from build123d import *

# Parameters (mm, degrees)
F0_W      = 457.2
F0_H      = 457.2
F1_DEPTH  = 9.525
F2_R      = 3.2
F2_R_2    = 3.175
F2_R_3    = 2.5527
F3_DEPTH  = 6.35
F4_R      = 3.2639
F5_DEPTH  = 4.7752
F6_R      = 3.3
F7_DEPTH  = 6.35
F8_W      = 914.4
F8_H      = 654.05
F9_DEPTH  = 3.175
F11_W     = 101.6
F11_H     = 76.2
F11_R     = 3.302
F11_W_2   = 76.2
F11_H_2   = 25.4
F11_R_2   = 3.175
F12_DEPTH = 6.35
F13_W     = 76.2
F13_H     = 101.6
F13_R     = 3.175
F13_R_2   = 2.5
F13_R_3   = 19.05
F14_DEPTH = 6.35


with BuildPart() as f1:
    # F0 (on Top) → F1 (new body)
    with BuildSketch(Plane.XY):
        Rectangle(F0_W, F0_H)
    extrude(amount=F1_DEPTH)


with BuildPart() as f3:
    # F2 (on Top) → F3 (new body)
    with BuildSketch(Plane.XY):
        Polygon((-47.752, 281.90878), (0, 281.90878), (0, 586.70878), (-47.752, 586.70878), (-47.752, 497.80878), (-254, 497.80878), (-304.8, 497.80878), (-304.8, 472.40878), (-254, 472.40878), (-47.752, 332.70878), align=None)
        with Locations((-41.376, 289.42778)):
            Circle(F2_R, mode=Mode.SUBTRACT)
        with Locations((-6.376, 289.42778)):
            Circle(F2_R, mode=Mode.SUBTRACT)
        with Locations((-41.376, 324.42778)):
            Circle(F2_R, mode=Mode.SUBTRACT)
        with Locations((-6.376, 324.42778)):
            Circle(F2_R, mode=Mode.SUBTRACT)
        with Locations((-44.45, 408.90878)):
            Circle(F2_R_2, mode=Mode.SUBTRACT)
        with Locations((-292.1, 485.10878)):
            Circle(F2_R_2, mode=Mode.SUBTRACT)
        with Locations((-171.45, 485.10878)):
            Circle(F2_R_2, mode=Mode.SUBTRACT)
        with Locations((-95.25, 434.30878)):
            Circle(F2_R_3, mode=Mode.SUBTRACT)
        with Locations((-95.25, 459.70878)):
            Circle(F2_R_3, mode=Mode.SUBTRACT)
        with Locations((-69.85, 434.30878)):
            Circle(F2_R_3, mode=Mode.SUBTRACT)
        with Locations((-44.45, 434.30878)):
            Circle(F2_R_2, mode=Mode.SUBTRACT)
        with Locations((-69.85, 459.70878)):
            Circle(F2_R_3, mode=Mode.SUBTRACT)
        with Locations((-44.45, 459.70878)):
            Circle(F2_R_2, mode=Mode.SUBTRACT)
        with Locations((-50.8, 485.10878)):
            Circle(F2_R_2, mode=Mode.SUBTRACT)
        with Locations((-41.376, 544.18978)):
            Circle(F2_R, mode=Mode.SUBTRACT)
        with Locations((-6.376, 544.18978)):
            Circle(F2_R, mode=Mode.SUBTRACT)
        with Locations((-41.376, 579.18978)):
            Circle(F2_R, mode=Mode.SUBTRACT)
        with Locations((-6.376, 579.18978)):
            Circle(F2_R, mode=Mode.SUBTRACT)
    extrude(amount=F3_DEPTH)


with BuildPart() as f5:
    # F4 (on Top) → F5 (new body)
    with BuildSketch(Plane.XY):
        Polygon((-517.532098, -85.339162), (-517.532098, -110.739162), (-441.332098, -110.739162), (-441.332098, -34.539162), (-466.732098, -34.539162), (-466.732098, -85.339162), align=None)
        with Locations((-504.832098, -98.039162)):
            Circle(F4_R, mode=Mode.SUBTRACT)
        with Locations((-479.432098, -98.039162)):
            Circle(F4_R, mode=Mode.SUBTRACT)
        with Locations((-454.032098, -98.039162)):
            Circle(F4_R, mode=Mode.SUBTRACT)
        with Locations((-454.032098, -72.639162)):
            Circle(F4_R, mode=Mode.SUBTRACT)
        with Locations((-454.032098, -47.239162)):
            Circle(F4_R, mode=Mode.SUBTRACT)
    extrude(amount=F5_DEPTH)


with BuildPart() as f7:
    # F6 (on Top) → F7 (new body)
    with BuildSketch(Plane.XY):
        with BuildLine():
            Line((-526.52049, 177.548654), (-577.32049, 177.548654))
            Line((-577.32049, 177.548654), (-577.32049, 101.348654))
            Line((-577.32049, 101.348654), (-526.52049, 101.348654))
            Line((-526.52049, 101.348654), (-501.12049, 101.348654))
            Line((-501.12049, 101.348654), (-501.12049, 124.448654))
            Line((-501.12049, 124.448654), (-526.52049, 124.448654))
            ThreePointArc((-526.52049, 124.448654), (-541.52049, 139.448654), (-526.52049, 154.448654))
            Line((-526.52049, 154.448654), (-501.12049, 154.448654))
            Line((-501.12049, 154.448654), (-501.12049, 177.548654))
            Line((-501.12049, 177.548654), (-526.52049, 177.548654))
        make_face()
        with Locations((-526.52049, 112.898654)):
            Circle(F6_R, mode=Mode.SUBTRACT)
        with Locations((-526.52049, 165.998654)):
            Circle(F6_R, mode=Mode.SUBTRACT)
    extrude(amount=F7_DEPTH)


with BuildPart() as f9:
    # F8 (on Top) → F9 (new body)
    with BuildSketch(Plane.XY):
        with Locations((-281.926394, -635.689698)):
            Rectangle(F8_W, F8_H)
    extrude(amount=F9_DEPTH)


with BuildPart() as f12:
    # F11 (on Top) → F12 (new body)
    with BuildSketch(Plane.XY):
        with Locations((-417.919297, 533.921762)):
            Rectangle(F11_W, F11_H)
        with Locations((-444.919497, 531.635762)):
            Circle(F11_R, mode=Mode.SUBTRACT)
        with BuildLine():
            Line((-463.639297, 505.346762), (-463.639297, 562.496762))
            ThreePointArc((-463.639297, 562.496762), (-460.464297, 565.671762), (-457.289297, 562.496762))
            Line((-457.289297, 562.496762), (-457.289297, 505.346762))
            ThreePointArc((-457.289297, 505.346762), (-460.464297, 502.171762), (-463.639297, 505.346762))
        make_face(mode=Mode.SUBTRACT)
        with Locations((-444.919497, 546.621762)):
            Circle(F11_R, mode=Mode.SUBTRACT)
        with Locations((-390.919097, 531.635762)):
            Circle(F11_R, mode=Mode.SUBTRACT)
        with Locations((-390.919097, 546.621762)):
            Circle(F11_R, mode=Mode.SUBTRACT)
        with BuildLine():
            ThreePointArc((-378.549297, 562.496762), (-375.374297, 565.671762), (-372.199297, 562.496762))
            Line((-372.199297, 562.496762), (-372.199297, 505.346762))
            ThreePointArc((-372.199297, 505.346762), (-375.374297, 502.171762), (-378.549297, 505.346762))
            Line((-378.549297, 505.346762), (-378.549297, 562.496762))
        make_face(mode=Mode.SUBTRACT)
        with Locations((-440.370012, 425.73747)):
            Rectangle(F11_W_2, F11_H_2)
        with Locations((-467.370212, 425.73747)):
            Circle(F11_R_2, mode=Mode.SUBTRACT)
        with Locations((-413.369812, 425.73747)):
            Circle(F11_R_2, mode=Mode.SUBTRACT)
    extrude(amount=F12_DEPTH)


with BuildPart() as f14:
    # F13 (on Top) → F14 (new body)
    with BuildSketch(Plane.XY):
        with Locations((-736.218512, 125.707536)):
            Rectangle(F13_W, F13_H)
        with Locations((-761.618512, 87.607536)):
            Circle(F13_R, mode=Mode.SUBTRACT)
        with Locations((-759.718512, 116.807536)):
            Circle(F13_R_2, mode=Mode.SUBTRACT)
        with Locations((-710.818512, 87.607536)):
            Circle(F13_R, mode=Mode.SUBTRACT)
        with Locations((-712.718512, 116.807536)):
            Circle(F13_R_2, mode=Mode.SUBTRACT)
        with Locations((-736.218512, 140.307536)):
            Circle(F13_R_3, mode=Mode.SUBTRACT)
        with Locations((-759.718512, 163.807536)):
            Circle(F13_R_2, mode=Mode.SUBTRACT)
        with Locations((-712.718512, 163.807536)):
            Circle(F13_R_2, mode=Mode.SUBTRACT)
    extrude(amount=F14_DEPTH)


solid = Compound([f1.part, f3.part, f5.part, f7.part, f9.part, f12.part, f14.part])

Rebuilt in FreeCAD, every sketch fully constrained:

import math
import FreeCAD as App
import Part
import Sketcher

V = App.Vector
Q = App.Units.Quantity

doc = App.newDocument("Part")
body = doc.addObject("PartDesign::Body", "Body")

sketch1 = body.newObject("Sketcher::SketchObject", "Sketch")
sketch1.AttachmentSupport = (doc.getObject("XY_Plane"), [""])
sketch1.MapMode = "FlatFace"
sketch1.addGeometry([
    Part.LineSegment(V(-228.6, 228.6, 0), V(-228.6, -228.6, 0)),
    Part.LineSegment(V(-228.6, -228.6, 0), V(228.6, -228.6, 0)),
    Part.LineSegment(V(228.6, -228.6, 0), V(228.6, 228.6, 0)),
    Part.LineSegment(V(228.6, 228.6, 0), V(-228.6, 228.6, 0)),
], False)
sketch1.addConstraint([
    Sketcher.Constraint("Coincident", 0, 2, 1, 1),
    Sketcher.Constraint("Coincident", 1, 2, 2, 1),
    Sketcher.Constraint("Coincident", 2, 2, 3, 1),
    Sketcher.Constraint("Coincident", 3, 2, 0, 1),
    Sketcher.Constraint("Vertical", 0),
    Sketcher.Constraint("Horizontal", 1),
    Sketcher.Constraint("Vertical", 2),
    Sketcher.Constraint("Horizontal", 3),
    Sketcher.Constraint("Symmetric", 0, 2, 2, 2, -1, 1),
    Sketcher.Constraint("Equal", 3, 0),
    Sketcher.Constraint("DistanceX", 1, 1, 1, 2, Q("18 in")),
])
pad1 = body.newObject("PartDesign::Pad", "Pad")
pad1.Profile = sketch1
pad1.Length = Q("0.375 in")
body2 = doc.addObject("PartDesign::Body", "Body001")

sketch2 = body2.newObject("Sketcher::SketchObject", "Sketch001")
sketch2.AttachmentSupport = (doc.getObject("XY_Plane001"), [""])
sketch2.MapMode = "FlatFace"
sketch2.addGeometry([
    Part.LineSegment(V(-47.752, 281.90878, 0), V(0, 281.90878, 0)),
    Part.LineSegment(V(0, 281.90878, 0), V(0, 586.70878, 0)),
    Part.LineSegment(V(0, 586.70878, 0), V(-47.752, 586.70878, 0)),
    Part.LineSegment(V(-47.752, 586.70878, 0), V(-47.752, 497.80878, 0)),
    Part.LineSegment(V(-47.752, 497.80878, 0), V(-304.8, 497.80878, 0)),
    Part.LineSegment(V(-304.8, 497.80878, 0), V(-304.8, 472.40878, 0)),
    Part.LineSegment(V(-304.8, 472.40878, 0), V(-254, 472.40878, 0)),
    Part.LineSegment(V(-254, 472.40878, 0), V(-47.752, 332.70878, 0)),
    Part.LineSegment(V(-47.752, 332.70878, 0), V(-47.752, 281.90878, 0)),
    Part.Circle(V(-41.376, 289.42778, 0), V(0, 0, 1), 3.2),
    Part.Circle(V(-6.376, 289.42778, 0), V(0, 0, 1), 3.2),
    Part.Circle(V(-41.376, 324.42778, 0), V(0, 0, 1), 3.2),
    Part.Circle(V(-6.376, 324.42778, 0), V(0, 0, 1), 3.2),
    Part.Circle(V(-44.45, 408.90878, 0), V(0, 0, 1), 3.175),
    Part.Circle(V(-292.1, 485.10878, 0), V(0, 0, 1), 3.175),
    Part.Circle(V(-171.45, 485.10878, 0), V(0, 0, 1), 3.175),
    Part.Circle(V(-95.25, 434.30878, 0), V(0, 0, 1), 2.5527),
    Part.Circle(V(-95.25, 459.70878, 0), V(0, 0, 1), 2.5527),
    Part.Circle(V(-69.85, 434.30878, 0), V(0, 0, 1), 2.5527),
    Part.Circle(V(-44.45, 434.30878, 0), V(0, 0, 1), 3.175),
    Part.Circle(V(-69.85, 459.70878, 0), V(0, 0, 1), 2.5527),
    Part.Circle(V(-44.45, 459.70878, 0), V(0, 0, 1), 3.175),
    Part.Circle(V(-50.8, 485.10878, 0), V(0, 0, 1), 3.175),
    Part.Circle(V(-41.376, 544.18978, 0), V(0, 0, 1), 3.2),
    Part.Circle(V(-6.376, 544.18978, 0), V(0, 0, 1), 3.2),
    Part.Circle(V(-41.376, 579.18978, 0), V(0, 0, 1), 3.2),
    Part.Circle(V(-6.376, 579.18978, 0), V(0, 0, 1), 3.2),
], False)
sketch2.addConstraint([
    Sketcher.Constraint("Coincident", 0, 2, 1, 1),
    Sketcher.Constraint("Coincident", 1, 2, 2, 1),
    Sketcher.Constraint("Coincident", 2, 2, 3, 1),
    Sketcher.Constraint("Coincident", 3, 2, 4, 1),
    Sketcher.Constraint("Coincident", 4, 2, 5, 1),
    Sketcher.Constraint("Coincident", 5, 2, 6, 1),
    Sketcher.Constraint("Coincident", 6, 2, 7, 1),
    Sketcher.Constraint("Coincident", 7, 2, 8, 1),
    Sketcher.Constraint("Coincident", 8, 2, 0, 1),
    Sketcher.Constraint("Horizontal", 0),
    Sketcher.Constraint("Vertical", 1),
    Sketcher.Constraint("Horizontal", 2),
    Sketcher.Constraint("Vertical", 3),
    Sketcher.Constraint("Horizontal", 4),
    Sketcher.Constraint("Vertical", 5),
    Sketcher.Constraint("Horizontal", 6),
    Sketcher.Constraint("Vertical", 8),
    Sketcher.Constraint("Equal", 9, 10),
    Sketcher.Constraint("Equal", 10, 11),
    Sketcher.Constraint("Equal", 11, 12),
    Sketcher.Constraint("Equal", 13, 14),
    Sketcher.Constraint("Equal", 14, 15),
    Sketcher.Constraint("Equal", 16, 17),
    Sketcher.Constraint("Equal", 17, 18),
    Sketcher.Constraint("Equal", 15, 19),
    Sketcher.Constraint("Equal", 18, 20),
    Sketcher.Constraint("Equal", 19, 21),
    Sketcher.Constraint("Equal", 21, 22),
    Sketcher.Constraint("Equal", 12, 23),
    Sketcher.Constraint("Equal", 23, 24),
    Sketcher.Constraint("Equal", 24, 25),
    Sketcher.Constraint("Equal", 25, 26),
    Sketcher.Constraint("PointOnObject", 0, 2, -2),
    Sketcher.Constraint("Horizontal", 9, 3, 10, 3),
    Sketcher.Constraint("Horizontal", 11, 3, 12, 3),
    Sketcher.Constraint("Horizontal", 14, 3, 15, 3),
    Sketcher.Constraint("Horizontal", 16, 3, 18, 3),
    Sketcher.Constraint("Horizontal", 18, 3, 19, 3),
    Sketcher.Constraint("Horizontal", 17, 3, 20, 3),
    Sketcher.Constraint("Horizontal", 20, 3, 21, 3),
    Sketcher.Constraint("Horizontal", 15, 3, 22, 3),
    Sketcher.Constraint("Horizontal", 23, 3, 24, 3),
    Sketcher.Constraint("Horizontal", 25, 3, 26, 3),
    Sketcher.Constraint("Vertical", 9, 3, 11, 3),
    Sketcher.Constraint("Vertical", 10, 3, 12, 3),
    Sketcher.Constraint("Vertical", 16, 3, 17, 3),
    Sketcher.Constraint("Vertical", 13, 3, 19, 3),
    Sketcher.Constraint("Vertical", 18, 3, 20, 3),
    Sketcher.Constraint("Vertical", 19, 3, 21, 3),
    Sketcher.Constraint("Vertical", 11, 3, 23, 3),
    Sketcher.Constraint("Vertical", 12, 3, 24, 3),
    Sketcher.Constraint("Vertical", 23, 3, 25, 3),
    Sketcher.Constraint("Vertical", 24, 3, 26, 3),
    Sketcher.Constraint("Vertical", 3, 2, 7, 2),
    Sketcher.Constraint("Equal", 6, 8),
    Sketcher.Constraint("Diameter", 13, Q("0.25 in")),
    Sketcher.Constraint("DistanceX", 6, 1, 6, 2, Q("2 in")),
    Sketcher.Constraint("DistanceY", 1, 1, 1, 2, Q("12 in")),
    Sketcher.Constraint("DistanceY", 5, 2, 5, 1, Q("1 in")),
    Sketcher.Constraint("Diameter", 16, Q("0.201 in")),
    Sketcher.Constraint("DistanceY", 3, 2, 3, 1, Q("3.5 in")),
    Sketcher.Constraint("DistanceX", 22, 3, -1, 1, Q("2 in")),
    Sketcher.Constraint("DistanceX", 4, 2, -1, 1, Q("12 in")),
    Sketcher.Constraint("DistanceY", 13, 3, 14, 3, Q("3 in")),
    Sketcher.Constraint("DistanceX", 15, 3, 13, 3, Q("5 in")),
    Sketcher.Constraint("DistanceX", 16, 3, 13, 3, Q("2 in")),
    Sketcher.Constraint("DistanceY", 13, 3, 16, 3, Q("1 in")),
    Sketcher.Constraint("DistanceY", 16, 3, 17, 3, Q("1 in")),
    Sketcher.Constraint("DistanceX", 16, 3, 18, 3, Q("1 in")),
    Sketcher.Constraint("DistanceY", 0, 2, 13, 3, Q("5 in")),
    Sketcher.Constraint("DistanceX", 0, 1, 0, 2, Q("1.88 in")),
    Sketcher.Constraint("DistanceX", 14, 3, -1, 1, Q("11.5 in")),
    Sketcher.Constraint("Diameter", 9, 6.4),
    Sketcher.Constraint("DistanceX", 13, 3, -1, 1, Q("1.75 in")),
    Sketcher.Constraint("DistanceX", 9, 3, -1, 1, 41.376),
    Sketcher.Constraint("DistanceX", 10, 3, -1, 1, 6.376),
    Sketcher.Constraint("DistanceY", 9, 3, 11, 3, 35.0),
    Sketcher.Constraint("DistanceY", 11, 3, 13, 3, 84.481),
    Sketcher.Constraint("DistanceY", 22, 3, 23, 3, 59.081),
    Sketcher.Constraint("DistanceY", 23, 3, 25, 3, 35.0),
    Sketcher.Constraint("DistanceY", -1, 1, 9, 3, 289.42778),
])
pad2 = body2.newObject("PartDesign::Pad", "Pad001")
pad2.Profile = sketch2
pad2.Length = Q("0.25 in")
body3 = doc.addObject("PartDesign::Body", "Body002")

sketch3 = body3.newObject("Sketcher::SketchObject", "Sketch002")
sketch3.AttachmentSupport = (doc.getObject("XY_Plane002"), [""])
sketch3.MapMode = "FlatFace"
sketch3.addGeometry([
    Part.LineSegment(V(-517.532098, -85.339162, 0), V(-517.532098, -110.739162, 0)),
    Part.LineSegment(V(-517.532098, -110.739162, 0), V(-441.332098, -110.739162, 0)),
    Part.LineSegment(V(-441.332098, -110.739162, 0), V(-441.332098, -34.539162, 0)),
    Part.LineSegment(V(-441.332098, -34.539162, 0), V(-466.732098, -34.539162, 0)),
    Part.LineSegment(V(-466.732098, -34.539162, 0), V(-466.732098, -85.339162, 0)),
    Part.LineSegment(V(-466.732098, -85.339162, 0), V(-517.532098, -85.339162, 0)),
    Part.Circle(V(-504.832098, -98.039162, 0), V(0, 0, 1), 3.2639),
    Part.Circle(V(-479.432098, -98.039162, 0), V(0, 0, 1), 3.2639),
    Part.Circle(V(-454.032098, -98.039162, 0), V(0, 0, 1), 3.2639),
    Part.Circle(V(-454.032098, -72.639162, 0), V(0, 0, 1), 3.2639),
    Part.Circle(V(-454.032098, -47.239162, 0), V(0, 0, 1), 3.2639),
], False)
sketch3.addConstraint([
    Sketcher.Constraint("Coincident", 0, 2, 1, 1),
    Sketcher.Constraint("Coincident", 1, 2, 2, 1),
    Sketcher.Constraint("Coincident", 2, 2, 3, 1),
    Sketcher.Constraint("Coincident", 3, 2, 4, 1),
    Sketcher.Constraint("Coincident", 4, 2, 5, 1),
    Sketcher.Constraint("Coincident", 5, 2, 0, 1),
    Sketcher.Constraint("Vertical", 0),
    Sketcher.Constraint("Horizontal", 1),
    Sketcher.Constraint("Vertical", 2),
    Sketcher.Constraint("Horizontal", 3),
    Sketcher.Constraint("Vertical", 4),
    Sketcher.Constraint("Horizontal", 5),
    Sketcher.Constraint("Equal", 6, 7),
    Sketcher.Constraint("Equal", 7, 8),
    Sketcher.Constraint("Equal", 8, 9),
    Sketcher.Constraint("Equal", 9, 10),
    Sketcher.Constraint("Horizontal", 6, 3, 7, 3),
    Sketcher.Constraint("Horizontal", 7, 3, 8, 3),
    Sketcher.Constraint("Vertical", 8, 3, 9, 3),
    Sketcher.Constraint("Vertical", 9, 3, 10, 3),
    Sketcher.Constraint("Equal", 3, 0),
    Sketcher.Constraint("Equal", 1, 2),
    Sketcher.Constraint("DistanceX", 1, 1, 1, 2, Q("3 in")),
    Sketcher.Constraint("DistanceX", 3, 2, 3, 1, Q("1 in")),
    Sketcher.Constraint("Diameter", 6, Q("0.257 in")),
    Sketcher.Constraint("DistanceX", 6, 3, 7, 3, Q("1 in")),
    Sketcher.Constraint("DistanceX", 7, 3, 8, 3, Q("1 in")),
    Sketcher.Constraint("DistanceY", 8, 3, 9, 3, Q("1 in")),
    Sketcher.Constraint("DistanceY", 9, 3, 10, 3, Q("1 in")),
    Sketcher.Constraint("DistanceX", 0, 2, 6, 3, Q("0.5 in")),
    Sketcher.Constraint("DistanceY", 0, 2, 6, 3, Q("0.5 in")),
    Sketcher.Constraint("DistanceX", 7, 3, -1, 1, 479.432098),
    Sketcher.Constraint("DistanceY", 9, 3, -1, 1, 72.639162),
])
pad3 = body3.newObject("PartDesign::Pad", "Pad002")
pad3.Profile = sketch3
pad3.Length = Q("0.188 in")
body4 = doc.addObject("PartDesign::Body", "Body003")

sketch4 = body4.newObject("Sketcher::SketchObject", "Sketch003")
sketch4.AttachmentSupport = (doc.getObject("XY_Plane003"), [""])
sketch4.MapMode = "FlatFace"
sketch4.addGeometry([
    Part.LineSegment(V(-577.32049, 177.548654, 0), V(-577.32049, 101.348654, 0)),
    Part.LineSegment(V(-577.32049, 101.348654, 0), V(-501.12049, 101.348654, 0)),
    Part.LineSegment(V(-501.12049, 101.348654, 0), V(-501.12049, 124.448654, 0)),
    Part.LineSegment(V(-501.12049, 124.448654, 0), V(-526.52049, 124.448654, 0)),
    Part.ArcOfCircle(Part.Circle(V(-526.52049, 139.448654, 0), V(0, 0, 1), 15), math.radians(90), math.radians(270)),
    Part.LineSegment(V(-526.52049, 154.448654, 0), V(-501.12049, 154.448654, 0)),
    Part.LineSegment(V(-501.12049, 154.448654, 0), V(-501.12049, 177.548654, 0)),
    Part.LineSegment(V(-501.12049, 177.548654, 0), V(-577.32049, 177.548654, 0)),
    Part.Circle(V(-526.52049, 112.898654, 0), V(0, 0, 1), 3.3),
    Part.Circle(V(-526.52049, 165.998654, 0), V(0, 0, 1), 3.3),
], False)
sketch4.addConstraint([
    Sketcher.Constraint("Coincident", 0, 2, 1, 1),
    Sketcher.Constraint("Coincident", 1, 2, 2, 1),
    Sketcher.Constraint("Coincident", 2, 2, 3, 1),
    Sketcher.Constraint("Tangent", 3, 2, 4, 2),
    Sketcher.Constraint("Tangent", 4, 1, 5, 1),
    Sketcher.Constraint("Coincident", 5, 2, 6, 1),
    Sketcher.Constraint("Coincident", 6, 2, 7, 1),
    Sketcher.Constraint("Coincident", 7, 2, 0, 1),
    Sketcher.Constraint("Vertical", 0),
    Sketcher.Constraint("Horizontal", 1),
    Sketcher.Constraint("Vertical", 2),
    Sketcher.Constraint("Horizontal", 3),
    Sketcher.Constraint("Horizontal", 5),
    Sketcher.Constraint("Vertical", 6),
    Sketcher.Constraint("Horizontal", 7),
    Sketcher.Constraint("Equal", 8, 9),
    Sketcher.Constraint("Vertical", 4, 3, 8, 3),
    Sketcher.Constraint("Vertical", 8, 3, 9, 3),
    Sketcher.Constraint("Vertical", 2, 2, 5, 2),
    Sketcher.Constraint("Equal", 7, 0),
    Sketcher.Constraint("Equal", 2, 6),
    Sketcher.Constraint("DistanceX", 1, 1, 1, 2, Q("3 in")),
    Sketcher.Constraint("DistanceX", 3, 2, 3, 1, Q("1 in")),
    Sketcher.Constraint("Diameter", 8, 6.6),
    Sketcher.Constraint("Radius", 4, 15.0),
    Sketcher.Constraint("DistanceY", 8, 3, 4, 3, 26.55),
    Sketcher.Constraint("DistanceY", 4, 3, 9, 3, 26.55),
    Sketcher.Constraint("DistanceX", 4, 3, -1, 1, 526.52049),
    Sketcher.Constraint("DistanceY", -1, 1, 4, 3, 139.448654),
])
pad4 = body4.newObject("PartDesign::Pad", "Pad003")
pad4.Profile = sketch4
pad4.Length = Q("0.25 in")
body5 = doc.addObject("PartDesign::Body", "Body004")

sketch5 = body5.newObject("Sketcher::SketchObject", "Sketch004")
sketch5.AttachmentSupport = (doc.getObject("XY_Plane004"), [""])
sketch5.MapMode = "FlatFace"
sketch5.addGeometry([
    Part.LineSegment(V(-739.126394, -308.664698, 0), V(-739.126394, -962.714698, 0)),
    Part.LineSegment(V(-739.126394, -962.714698, 0), V(175.273606, -962.714698, 0)),
    Part.LineSegment(V(175.273606, -962.714698, 0), V(175.273606, -308.664698, 0)),
    Part.LineSegment(V(175.273606, -308.664698, 0), V(-739.126394, -308.664698, 0)),
], False)
sketch5.addConstraint([
    Sketcher.Constraint("Coincident", 0, 2, 1, 1),
    Sketcher.Constraint("Coincident", 1, 2, 2, 1),
    Sketcher.Constraint("Coincident", 2, 2, 3, 1),
    Sketcher.Constraint("Coincident", 3, 2, 0, 1),
    Sketcher.Constraint("Vertical", 0),
    Sketcher.Constraint("Horizontal", 1),
    Sketcher.Constraint("Vertical", 2),
    Sketcher.Constraint("Horizontal", 3),
    Sketcher.Constraint("DistanceX", 1, 1, 1, 2, Q("36 in")),
    Sketcher.Constraint("DistanceY", 0, 2, 0, 1, Q("25.75 in")),
    Sketcher.Constraint("DistanceY", 0, 2, -1, 1, 962.714698),
    Sketcher.Constraint("DistanceX", 0, 2, -1, 1, 739.126394),
])
pad5 = body5.newObject("PartDesign::Pad", "Pad004")
pad5.Profile = sketch5
pad5.Length = Q("0.125 in")
body6 = doc.addObject("PartDesign::Body", "Body005")
body6.AllowCompound = True

sketch6 = body6.newObject("Sketcher::SketchObject", "Sketch005")
sketch6.AttachmentSupport = (doc.getObject("XY_Plane005"), [""])
sketch6.MapMode = "FlatFace"
sketch6.addGeometry([
    Part.LineSegment(V(-468.719297, 572.021762, 0), V(-468.719297, 495.821762, 0)),
    Part.LineSegment(V(-468.719297, 495.821762, 0), V(-367.119297, 495.821762, 0)),
    Part.LineSegment(V(-367.119297, 495.821762, 0), V(-367.119297, 572.021762, 0)),
    Part.LineSegment(V(-367.119297, 572.021762, 0), V(-468.719297, 572.021762, 0)),
    Part.Circle(V(-444.919497, 531.635762, 0), V(0, 0, 1), 3.302),
    Part.Circle(V(-390.919097, 531.635762, 0), V(0, 0, 1), 3.302),
    Part.LineSegment(V(-378.549297, 505.346762, 0), V(-378.549297, 562.496762, 0)),
    Part.ArcOfCircle(Part.Circle(V(-375.374297, 562.496762, 0), V(0, 0, 1), 3.175), math.radians(0), math.radians(180)),
    Part.LineSegment(V(-372.199297, 562.496762, 0), V(-372.199297, 505.346762, 0)),
    Part.ArcOfCircle(Part.Circle(V(-375.374297, 505.346762, 0), V(0, 0, 1), 3.175), math.radians(180), math.radians(360)),
    Part.ArcOfCircle(Part.Circle(V(-460.464297, 505.346762, 0), V(0, 0, 1), 3.175), math.radians(180), math.radians(360)),
    Part.LineSegment(V(-463.639297, 505.346762, 0), V(-463.639297, 562.496762, 0)),
    Part.ArcOfCircle(Part.Circle(V(-460.464297, 562.496762, 0), V(0, 0, 1), 3.175), math.radians(0), math.radians(180)),
    Part.LineSegment(V(-457.289297, 562.496762, 0), V(-457.289297, 505.346762, 0)),
    Part.Circle(V(-444.919497, 546.621762, 0), V(0, 0, 1), 3.302),
    Part.Circle(V(-390.919097, 546.621762, 0), V(0, 0, 1), 3.302),
    Part.LineSegment(V(-478.470012, 438.43747, 0), V(-478.470012, 413.03747, 0)),
    Part.LineSegment(V(-478.470012, 413.03747, 0), V(-402.270012, 413.03747, 0)),
    Part.LineSegment(V(-402.270012, 413.03747, 0), V(-402.270012, 438.43747, 0)),
    Part.LineSegment(V(-402.270012, 438.43747, 0), V(-478.470012, 438.43747, 0)),
    Part.Circle(V(-467.370212, 425.73747, 0), V(0, 0, 1), 3.175),
    Part.Circle(V(-413.369812, 425.73747, 0), V(0, 0, 1), 3.175),
], False)
sketch6.addConstraint([
    Sketcher.Constraint("Coincident", 0, 2, 1, 1),
    Sketcher.Constraint("Coincident", 1, 2, 2, 1),
    Sketcher.Constraint("Coincident", 2, 2, 3, 1),
    Sketcher.Constraint("Coincident", 3, 2, 0, 1),
    Sketcher.Constraint("Tangent", 6, 2, 7, 2),
    Sketcher.Constraint("Tangent", 7, 1, 8, 1),
    Sketcher.Constraint("Tangent", 8, 2, 9, 2),
    Sketcher.Constraint("Tangent", 9, 1, 6, 1),
    Sketcher.Constraint("Tangent", 10, 1, 11, 1),
    Sketcher.Constraint("Tangent", 11, 2, 12, 2),
    Sketcher.Constraint("Tangent", 12, 1, 13, 1),
    Sketcher.Constraint("Tangent", 13, 2, 10, 2),
    Sketcher.Constraint("Coincident", 16, 2, 17, 1),
    Sketcher.Constraint("Coincident", 17, 2, 18, 1),
    Sketcher.Constraint("Coincident", 18, 2, 19, 1),
    Sketcher.Constraint("Coincident", 19, 2, 16, 1),
    Sketcher.Constraint("Vertical", 0),
    Sketcher.Constraint("Horizontal", 1),
    Sketcher.Constraint("Vertical", 2),
    Sketcher.Constraint("Horizontal", 3),
    Sketcher.Constraint("Vertical", 6),
    Sketcher.Constraint("Vertical", 8),
    Sketcher.Constraint("Vertical", 11),
    Sketcher.Constraint("Vertical", 13),
    Sketcher.Constraint("Vertical", 16),
    Sketcher.Constraint("Horizontal", 17),
    Sketcher.Constraint("Vertical", 18),
    Sketcher.Constraint("Horizontal", 19),
    Sketcher.Constraint("Equal", 4, 5),
    Sketcher.Constraint("Equal", 9, 10),
    Sketcher.Constraint("Equal", 5, 14),
    Sketcher.Constraint("Equal", 14, 15),
    Sketcher.Constraint("Equal", 12, 20),
    Sketcher.Constraint("Equal", 20, 21),
    Sketcher.Constraint("Horizontal", 4, 3, 5, 3),
    Sketcher.Constraint("Horizontal", 9, 3, 10, 3),
    Sketcher.Constraint("Horizontal", 7, 3, 12, 3),
    Sketcher.Constraint("Horizontal", 14, 3, 15, 3),
    Sketcher.Constraint("Horizontal", 20, 3, 21, 3),
    Sketcher.Constraint("Vertical", 4, 3, 14, 3),
    Sketcher.Constraint("Vertical", 5, 3, 15, 3),
    Sketcher.Constraint("Equal", 19, 0),
    Sketcher.Constraint("Diameter", 4, Q("0.26 in")),
    Sketcher.Constraint("Diameter", 20, Q("0.25 in")),
    Sketcher.Constraint("DistanceX", 1, 1, 1, 2, Q("4 in")),
    Sketcher.Constraint("DistanceX", 17, 1, 17, 2, Q("3 in")),
    Sketcher.Constraint("DistanceY", 16, 2, 16, 1, Q("1 in")),
    Sketcher.Constraint("DistanceY", 0, 2, 14, 3, Q("2 in")),
    Sketcher.Constraint("DistanceY", 6, 1, 6, 2, Q("2.25 in")),
    Sketcher.Constraint("DistanceX", 7, 1, 2, 2, Q("0.2 in")),
    Sketcher.Constraint("DistanceX", 0, 2, 10, 1, Q("0.2 in")),
    Sketcher.Constraint("DistanceY", 16, 2, 20, 3, Q("0.5 in")),
    Sketcher.Constraint("DistanceY", 4, 3, 14, 3, Q("0.59 in")),
    Sketcher.Constraint("DistanceX", 4, 3, 5, 3, Q("2.126 in")),
    Sketcher.Constraint("DistanceX", 5, 3, 7, 3, Q("0.612 in")),
    Sketcher.Constraint("DistanceY", 5, 3, 7, 3, Q("1.215 in")),
    Sketcher.Constraint("DistanceX", 20, 3, 21, 3, Q("2.126 in")),
    Sketcher.Constraint("DistanceX", 16, 2, 20, 3, Q("0.437 in")),
    Sketcher.Constraint("DistanceY", -1, 1, 4, 3, 531.635762),
    Sketcher.Constraint("DistanceX", 20, 3, -1, 1, 467.370212),
    Sketcher.Constraint("DistanceY", -1, 1, 20, 3, 425.73747),
    Sketcher.Constraint("DistanceX", 4, 3, -1, 1, 444.919497),
])
pad6 = body6.newObject("PartDesign::Pad", "Pad005")
pad6.Profile = sketch6
pad6.Length = Q("0.25 in")
body7 = doc.addObject("PartDesign::Body", "Body006")

sketch7 = body7.newObject("Sketcher::SketchObject", "Sketch006")
sketch7.AttachmentSupport = (doc.getObject("XY_Plane006"), [""])
sketch7.MapMode = "FlatFace"
sketch7.addGeometry([
    Part.LineSegment(V(-774.318512, 176.507536, 0), V(-774.318512, 74.907536, 0)),
    Part.LineSegment(V(-774.318512, 74.907536, 0), V(-698.118512, 74.907536, 0)),
    Part.LineSegment(V(-698.118512, 74.907536, 0), V(-698.118512, 176.507536, 0)),
    Part.LineSegment(V(-698.118512, 176.507536, 0), V(-774.318512, 176.507536, 0)),
    Part.Circle(V(-761.618512, 87.607536, 0), V(0, 0, 1), 3.175),
    Part.Circle(V(-759.718512, 116.807536, 0), V(0, 0, 1), 2.5),
    Part.Circle(V(-710.818512, 87.607536, 0), V(0, 0, 1), 3.175),
    Part.Circle(V(-712.718512, 116.807536, 0), V(0, 0, 1), 2.5),
    Part.Circle(V(-759.718512, 163.807536, 0), V(0, 0, 1), 2.5),
    Part.Circle(V(-736.218512, 140.307536, 0), V(0, 0, 1), 19.05),
    Part.Circle(V(-712.718512, 163.807536, 0), V(0, 0, 1), 2.5),
], False)
sketch7.addConstraint([
    Sketcher.Constraint("Coincident", 0, 2, 1, 1),
    Sketcher.Constraint("Coincident", 1, 2, 2, 1),
    Sketcher.Constraint("Coincident", 2, 2, 3, 1),
    Sketcher.Constraint("Coincident", 3, 2, 0, 1),
    Sketcher.Constraint("Vertical", 0),
    Sketcher.Constraint("Horizontal", 1),
    Sketcher.Constraint("Vertical", 2),
    Sketcher.Constraint("Horizontal", 3),
    Sketcher.Constraint("Equal", 4, 6),
    Sketcher.Constraint("Equal", 5, 7),
    Sketcher.Constraint("Equal", 7, 8),
    Sketcher.Constraint("Equal", 8, 10),
    Sketcher.Constraint("Horizontal", 4, 3, 6, 3),
    Sketcher.Constraint("Horizontal", 5, 3, 7, 3),
    Sketcher.Constraint("Horizontal", 8, 3, 10, 3),
    Sketcher.Constraint("Vertical", 5, 3, 8, 3),
    Sketcher.Constraint("Vertical", 7, 3, 10, 3),
    Sketcher.Constraint("Diameter", 9, Q("1.5 in")),
    Sketcher.Constraint("Diameter", 4, Q("0.25 in")),
    Sketcher.Constraint("DistanceX", 1, 1, 1, 2, Q("3 in")),
    Sketcher.Constraint("DistanceY", 0, 2, 0, 1, Q("4 in")),
    Sketcher.Constraint("DistanceX", 4, 3, 6, 3, Q("2 in")),
    Sketcher.Constraint("DistanceY", 4, 3, 8, 3, Q("3 in")),
    Sketcher.Constraint("DistanceX", 4, 3, 9, 3, Q("1 in")),
    Sketcher.Constraint("DistanceX", 0, 2, 4, 3, Q("0.5 in")),
    Sketcher.Constraint("DistanceY", 0, 2, 4, 3, Q("0.5 in")),
    Sketcher.Constraint("Diameter", 5, 5.0),
    Sketcher.Constraint("DistanceX", 4, 3, 5, 3, 1.9),
    Sketcher.Constraint("DistanceY", 4, 3, 5, 3, 29.2),
    Sketcher.Constraint("DistanceX", 7, 3, 6, 3, 1.9),
    Sketcher.Constraint("DistanceY", 5, 3, 9, 3, 23.5),
    Sketcher.Constraint("DistanceX", 4, 3, -1, 1, 761.618512),
    Sketcher.Constraint("DistanceY", -1, 1, 4, 3, 87.607536),
])
pad7 = body7.newObject("PartDesign::Pad", "Pad006")
pad7.Profile = sketch7
pad7.Length = Q("0.25 in")

doc.recompute()
